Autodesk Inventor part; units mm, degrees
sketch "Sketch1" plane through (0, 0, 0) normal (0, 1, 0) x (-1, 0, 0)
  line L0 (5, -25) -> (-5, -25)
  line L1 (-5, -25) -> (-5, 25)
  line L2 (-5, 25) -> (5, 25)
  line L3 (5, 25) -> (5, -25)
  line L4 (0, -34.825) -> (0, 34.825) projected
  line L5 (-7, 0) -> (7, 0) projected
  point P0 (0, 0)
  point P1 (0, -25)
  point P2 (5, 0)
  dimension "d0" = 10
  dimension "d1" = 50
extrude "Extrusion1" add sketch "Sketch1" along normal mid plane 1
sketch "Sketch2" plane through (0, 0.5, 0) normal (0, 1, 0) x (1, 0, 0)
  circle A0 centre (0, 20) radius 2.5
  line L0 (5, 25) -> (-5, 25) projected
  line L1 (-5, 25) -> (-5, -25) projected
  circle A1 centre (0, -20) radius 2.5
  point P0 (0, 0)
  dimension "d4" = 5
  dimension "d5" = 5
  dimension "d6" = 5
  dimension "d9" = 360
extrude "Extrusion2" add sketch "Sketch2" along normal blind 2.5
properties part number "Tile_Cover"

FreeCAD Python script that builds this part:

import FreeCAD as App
import Part
import Sketcher

V = App.Vector
Q = App.Units.Quantity


def add_polygon(sketch, points):
    """Adds a closed chain of lines whose ends are joined by coincident constraints."""
    first, n = sketch.GeometryCount, len(points)
    for a, b in zip(points, points[1:] + points[:1]):
        sketch.addGeometry(Part.LineSegment(App.Vector(*a, 0), App.Vector(*b, 0)), False)
    for i in range(n):
        sketch.addConstraint(Sketcher.Constraint("Coincident", first + i, 2, first + (i + 1) % n, 1))

doc = App.newDocument("Part")
body = doc.addObject("PartDesign::Body", "Body")

# Sketch on XZ plane
sketch1 = body.newObject("Sketcher::SketchObject", "Sketch")
sketch1.AttachmentSupport = (doc.getObject("XZ_Plane"), [""])
sketch1.MapMode = "FlatFace"
add_polygon(sketch1, [(-5, -25), (-5, 25), (5, 25), (5, -25)])  # lines 0-3
sketch1.addConstraint(Sketcher.Constraint("Vertical", 0))
sketch1.addConstraint(Sketcher.Constraint("Horizontal", 1))
sketch1.addConstraint(Sketcher.Constraint("Vertical", 2))
sketch1.addConstraint(Sketcher.Constraint("Horizontal", 3))
sketch1.addConstraint(Sketcher.Constraint("Symmetric", 0, 2, 2, 2, -1, 1))
sketch1.addConstraint(Sketcher.Constraint("DistanceX", 1, 1, 1, 2, Q("10 mm")))
sketch1.addConstraint(Sketcher.Constraint("DistanceY", 0, 1, 0, 2, Q("50 mm")))
pad1 = body.newObject("PartDesign::Pad", "Pad")
pad1.Profile = sketch1
pad1.Length = 1
pad1.Midplane = True

# Sketch on XZ plane
sketch2 = body.newObject("Sketcher::SketchObject", "Sketch001")
sketch2.AttachmentSupport = (doc.getObject("XZ_Plane"), [""])
sketch2.MapMode = "FlatFace"
sketch2.AttachmentOffset = App.Placement(V(0, 0, -0.5), App.Rotation())
sketch2.addGeometry(Part.Circle(V(0, -20, 0), V(0, 0, 1), 2.5), False)
sketch2.addGeometry(Part.Circle(V(0, 20, 0), V(0, 0, 1), 2.5), False)
sketch2.addConstraint(Sketcher.Constraint("Equal", 0, 1))
sketch2.addConstraint(Sketcher.Constraint("Symmetric", 0, 3, 1, 3, -1, 1))
sketch2.addConstraint(Sketcher.Constraint("PointOnObject", 0, 3, -2))
sketch2.addConstraint(Sketcher.Constraint("Diameter", 0, Q("5 mm")))
sketch2.addConstraint(Sketcher.Constraint("DistanceY", 0, 3, -1, 1, Q("20 mm")))
pad2 = body.newObject("PartDesign::Pad", "Pad001")
pad2.Profile = sketch2
pad2.Length = 2.5
pad2.Reversed = True

doc.recompute()
